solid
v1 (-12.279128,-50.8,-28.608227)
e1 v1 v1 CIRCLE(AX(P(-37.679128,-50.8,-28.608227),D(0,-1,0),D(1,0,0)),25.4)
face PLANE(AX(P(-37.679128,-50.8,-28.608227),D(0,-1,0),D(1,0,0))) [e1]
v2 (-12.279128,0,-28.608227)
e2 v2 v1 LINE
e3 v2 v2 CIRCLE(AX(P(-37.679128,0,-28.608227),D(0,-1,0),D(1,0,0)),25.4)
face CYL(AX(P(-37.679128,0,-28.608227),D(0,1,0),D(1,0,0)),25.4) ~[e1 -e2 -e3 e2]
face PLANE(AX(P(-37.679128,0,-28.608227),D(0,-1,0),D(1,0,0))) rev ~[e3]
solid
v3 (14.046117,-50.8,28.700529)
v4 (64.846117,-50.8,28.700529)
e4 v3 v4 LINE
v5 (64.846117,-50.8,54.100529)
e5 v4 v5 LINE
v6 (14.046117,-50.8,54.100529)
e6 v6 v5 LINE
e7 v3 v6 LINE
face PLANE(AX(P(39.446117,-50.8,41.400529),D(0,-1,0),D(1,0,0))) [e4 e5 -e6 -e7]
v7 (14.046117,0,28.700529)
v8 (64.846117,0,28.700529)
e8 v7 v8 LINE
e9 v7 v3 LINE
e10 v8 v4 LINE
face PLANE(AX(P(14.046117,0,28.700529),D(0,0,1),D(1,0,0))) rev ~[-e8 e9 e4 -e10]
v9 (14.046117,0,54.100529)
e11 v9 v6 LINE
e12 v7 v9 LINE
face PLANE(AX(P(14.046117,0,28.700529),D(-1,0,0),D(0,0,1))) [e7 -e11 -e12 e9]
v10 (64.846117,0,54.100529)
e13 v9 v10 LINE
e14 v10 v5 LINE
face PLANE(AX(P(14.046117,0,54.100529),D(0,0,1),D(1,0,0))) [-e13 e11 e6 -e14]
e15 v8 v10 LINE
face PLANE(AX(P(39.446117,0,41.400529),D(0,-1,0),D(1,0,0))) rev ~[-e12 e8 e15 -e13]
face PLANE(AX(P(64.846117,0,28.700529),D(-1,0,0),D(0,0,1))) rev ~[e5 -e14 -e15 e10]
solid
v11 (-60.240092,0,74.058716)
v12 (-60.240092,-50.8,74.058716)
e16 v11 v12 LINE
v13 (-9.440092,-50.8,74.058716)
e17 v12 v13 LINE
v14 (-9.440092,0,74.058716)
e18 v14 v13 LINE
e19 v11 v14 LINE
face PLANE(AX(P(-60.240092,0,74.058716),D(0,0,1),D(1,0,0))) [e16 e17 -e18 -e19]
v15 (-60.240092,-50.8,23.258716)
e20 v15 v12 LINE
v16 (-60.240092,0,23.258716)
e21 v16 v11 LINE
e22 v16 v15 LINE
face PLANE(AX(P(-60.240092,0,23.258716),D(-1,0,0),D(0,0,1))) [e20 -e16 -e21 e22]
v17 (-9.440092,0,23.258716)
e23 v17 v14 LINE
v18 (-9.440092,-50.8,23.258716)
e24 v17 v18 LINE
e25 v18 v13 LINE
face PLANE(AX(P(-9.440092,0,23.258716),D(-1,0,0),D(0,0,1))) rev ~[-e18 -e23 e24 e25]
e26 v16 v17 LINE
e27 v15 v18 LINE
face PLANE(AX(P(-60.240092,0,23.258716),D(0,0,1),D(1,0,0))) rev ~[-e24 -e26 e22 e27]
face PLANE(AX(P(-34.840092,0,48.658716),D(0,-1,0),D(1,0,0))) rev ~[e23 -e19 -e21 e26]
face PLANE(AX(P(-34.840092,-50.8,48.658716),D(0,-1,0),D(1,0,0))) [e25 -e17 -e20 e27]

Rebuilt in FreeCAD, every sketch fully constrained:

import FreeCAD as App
import Part
import Sketcher
Q = App.Units.Quantity


def add_polygon(sketch, points):
    """Adds a closed chain of lines whose ends are joined by coincident constraints."""
    first, n = sketch.GeometryCount, len(points)
    for a, b in zip(points, points[1:] + points[:1]):
        sketch.addGeometry(Part.LineSegment(App.Vector(*a, 0), App.Vector(*b, 0)), False)
    for i in range(n):
        sketch.addConstraint(Sketcher.Constraint("Coincident", first + i, 2, first + (i + 1) % n, 1))

doc = App.newDocument("Part")
params = doc.addObject("Spreadsheet::Sheet", "Params")
for row, (alias, value) in enumerate([
    ("sketch1_width", "2 in"),
    ("pad1_length", "2 in"),
    ("sketch2_width", "2 in"),
    ("sketch2_height", "1 in"),
    ("pad2_length", "2 in"),
    ("sketch3_diameter", "2 in"),
    ("pad3_length", "2 in"),
], start=1):
    params.set(f"A{row}", alias)
    params.set(f"B{row}", "=" + value)
    params.setAlias(f"B{row}", alias)

body = doc.addObject("PartDesign::Body", "Body")

# Sketch on XZ plane
sketch1 = doc.addObject("Sketcher::SketchObject", "Sketch")
body.addObject(sketch1)
sketch1.AttachmentSupport = (doc.XZ_Plane, [""])
sketch1.MapMode = "FlatFace"
add_polygon(sketch1, [(-60, 74), (-60, 23), (-9, 23), (-9, 74)])  # lines 0-3
sketch1.addConstraint(Sketcher.Constraint("Vertical", 0))
sketch1.addConstraint(Sketcher.Constraint("Horizontal", 1))
sketch1.addConstraint(Sketcher.Constraint("Vertical", 2))
sketch1.addConstraint(Sketcher.Constraint("Horizontal", 3))
sketch1.addConstraint(Sketcher.Constraint("Equal", 3, 0))
sketch1.addConstraint(Sketcher.Constraint("DistanceX", 1, 1, 1, 2, Q("2 in")))
sketch1.addConstraint(Sketcher.Constraint("DistanceX", 0, 2, -1, 1, 60.240092))
sketch1.addConstraint(Sketcher.Constraint("DistanceY", -1, 1, 0, 2, 23.258716))
sketch1.setExpression("Constraints[9]", "Params.sketch1_width")
pad1 = doc.addObject("PartDesign::Pad", "Pad")
body.addObject(pad1)
pad1.Profile = sketch1
pad1.setExpression("Length", "Params.pad1_length")
body2 = doc.addObject("PartDesign::Body", "Body001")

# Sketch on XZ plane
sketch2 = doc.addObject("Sketcher::SketchObject", "Sketch001")
body2.addObject(sketch2)
sketch2.AttachmentSupport = (doc.getObject("XZ_Plane001"), [""])
sketch2.MapMode = "FlatFace"
add_polygon(sketch2, [(14, 54), (14, 29), (65, 29), (65, 54)])  # lines 0-3
sketch2.addConstraint(Sketcher.Constraint("Vertical", 0))
sketch2.addConstraint(Sketcher.Constraint("Horizontal", 1))
sketch2.addConstraint(Sketcher.Constraint("Vertical", 2))
sketch2.addConstraint(Sketcher.Constraint("Horizontal", 3))
sketch2.addConstraint(Sketcher.Constraint("DistanceX", 1, 1, 1, 2, Q("2 in")))
sketch2.addConstraint(Sketcher.Constraint("DistanceY", 0, 2, 0, 1, Q("1 in")))
sketch2.addConstraint(Sketcher.Constraint("DistanceY", -1, 1, 0, 2, 28.700529))
sketch2.addConstraint(Sketcher.Constraint("DistanceX", -1, 1, 0, 2, 14.046117))
sketch2.setExpression("Constraints[8]", "Params.sketch2_width")
sketch2.setExpression("Constraints[9]", "Params.sketch2_height")
pad2 = doc.addObject("PartDesign::Pad", "Pad001")
body2.addObject(pad2)
pad2.Profile = sketch2
pad2.setExpression("Length", "Params.pad2_length")
body3 = doc.addObject("PartDesign::Body", "Body002")

# Sketch on XZ plane
sketch3 = doc.addObject("Sketcher::SketchObject", "Sketch002")
body3.addObject(sketch3)
sketch3.AttachmentSupport = (doc.getObject("XZ_Plane002"), [""])
sketch3.MapMode = "FlatFace"
sketch3.addGeometry(Part.Circle(App.Vector(-38, -29, 0), App.Vector(0, 0, 1), 25), False)
sketch3.addConstraint(Sketcher.Constraint("Diameter", 0, Q("2 in")))
sketch3.addConstraint(Sketcher.Constraint("DistanceX", 0, 3, -1, 1, 37.679128))
sketch3.addConstraint(Sketcher.Constraint("DistanceY", 0, 3, -1, 1, 28.608227))
sketch3.setExpression("Constraints[0]", "Params.sketch3_diameter")
pad3 = doc.addObject("PartDesign::Pad", "Pad002")
body3.addObject(pad3)
pad3.Profile = sketch3
pad3.setExpression("Length", "Params.pad3_length")

doc.recompute()
